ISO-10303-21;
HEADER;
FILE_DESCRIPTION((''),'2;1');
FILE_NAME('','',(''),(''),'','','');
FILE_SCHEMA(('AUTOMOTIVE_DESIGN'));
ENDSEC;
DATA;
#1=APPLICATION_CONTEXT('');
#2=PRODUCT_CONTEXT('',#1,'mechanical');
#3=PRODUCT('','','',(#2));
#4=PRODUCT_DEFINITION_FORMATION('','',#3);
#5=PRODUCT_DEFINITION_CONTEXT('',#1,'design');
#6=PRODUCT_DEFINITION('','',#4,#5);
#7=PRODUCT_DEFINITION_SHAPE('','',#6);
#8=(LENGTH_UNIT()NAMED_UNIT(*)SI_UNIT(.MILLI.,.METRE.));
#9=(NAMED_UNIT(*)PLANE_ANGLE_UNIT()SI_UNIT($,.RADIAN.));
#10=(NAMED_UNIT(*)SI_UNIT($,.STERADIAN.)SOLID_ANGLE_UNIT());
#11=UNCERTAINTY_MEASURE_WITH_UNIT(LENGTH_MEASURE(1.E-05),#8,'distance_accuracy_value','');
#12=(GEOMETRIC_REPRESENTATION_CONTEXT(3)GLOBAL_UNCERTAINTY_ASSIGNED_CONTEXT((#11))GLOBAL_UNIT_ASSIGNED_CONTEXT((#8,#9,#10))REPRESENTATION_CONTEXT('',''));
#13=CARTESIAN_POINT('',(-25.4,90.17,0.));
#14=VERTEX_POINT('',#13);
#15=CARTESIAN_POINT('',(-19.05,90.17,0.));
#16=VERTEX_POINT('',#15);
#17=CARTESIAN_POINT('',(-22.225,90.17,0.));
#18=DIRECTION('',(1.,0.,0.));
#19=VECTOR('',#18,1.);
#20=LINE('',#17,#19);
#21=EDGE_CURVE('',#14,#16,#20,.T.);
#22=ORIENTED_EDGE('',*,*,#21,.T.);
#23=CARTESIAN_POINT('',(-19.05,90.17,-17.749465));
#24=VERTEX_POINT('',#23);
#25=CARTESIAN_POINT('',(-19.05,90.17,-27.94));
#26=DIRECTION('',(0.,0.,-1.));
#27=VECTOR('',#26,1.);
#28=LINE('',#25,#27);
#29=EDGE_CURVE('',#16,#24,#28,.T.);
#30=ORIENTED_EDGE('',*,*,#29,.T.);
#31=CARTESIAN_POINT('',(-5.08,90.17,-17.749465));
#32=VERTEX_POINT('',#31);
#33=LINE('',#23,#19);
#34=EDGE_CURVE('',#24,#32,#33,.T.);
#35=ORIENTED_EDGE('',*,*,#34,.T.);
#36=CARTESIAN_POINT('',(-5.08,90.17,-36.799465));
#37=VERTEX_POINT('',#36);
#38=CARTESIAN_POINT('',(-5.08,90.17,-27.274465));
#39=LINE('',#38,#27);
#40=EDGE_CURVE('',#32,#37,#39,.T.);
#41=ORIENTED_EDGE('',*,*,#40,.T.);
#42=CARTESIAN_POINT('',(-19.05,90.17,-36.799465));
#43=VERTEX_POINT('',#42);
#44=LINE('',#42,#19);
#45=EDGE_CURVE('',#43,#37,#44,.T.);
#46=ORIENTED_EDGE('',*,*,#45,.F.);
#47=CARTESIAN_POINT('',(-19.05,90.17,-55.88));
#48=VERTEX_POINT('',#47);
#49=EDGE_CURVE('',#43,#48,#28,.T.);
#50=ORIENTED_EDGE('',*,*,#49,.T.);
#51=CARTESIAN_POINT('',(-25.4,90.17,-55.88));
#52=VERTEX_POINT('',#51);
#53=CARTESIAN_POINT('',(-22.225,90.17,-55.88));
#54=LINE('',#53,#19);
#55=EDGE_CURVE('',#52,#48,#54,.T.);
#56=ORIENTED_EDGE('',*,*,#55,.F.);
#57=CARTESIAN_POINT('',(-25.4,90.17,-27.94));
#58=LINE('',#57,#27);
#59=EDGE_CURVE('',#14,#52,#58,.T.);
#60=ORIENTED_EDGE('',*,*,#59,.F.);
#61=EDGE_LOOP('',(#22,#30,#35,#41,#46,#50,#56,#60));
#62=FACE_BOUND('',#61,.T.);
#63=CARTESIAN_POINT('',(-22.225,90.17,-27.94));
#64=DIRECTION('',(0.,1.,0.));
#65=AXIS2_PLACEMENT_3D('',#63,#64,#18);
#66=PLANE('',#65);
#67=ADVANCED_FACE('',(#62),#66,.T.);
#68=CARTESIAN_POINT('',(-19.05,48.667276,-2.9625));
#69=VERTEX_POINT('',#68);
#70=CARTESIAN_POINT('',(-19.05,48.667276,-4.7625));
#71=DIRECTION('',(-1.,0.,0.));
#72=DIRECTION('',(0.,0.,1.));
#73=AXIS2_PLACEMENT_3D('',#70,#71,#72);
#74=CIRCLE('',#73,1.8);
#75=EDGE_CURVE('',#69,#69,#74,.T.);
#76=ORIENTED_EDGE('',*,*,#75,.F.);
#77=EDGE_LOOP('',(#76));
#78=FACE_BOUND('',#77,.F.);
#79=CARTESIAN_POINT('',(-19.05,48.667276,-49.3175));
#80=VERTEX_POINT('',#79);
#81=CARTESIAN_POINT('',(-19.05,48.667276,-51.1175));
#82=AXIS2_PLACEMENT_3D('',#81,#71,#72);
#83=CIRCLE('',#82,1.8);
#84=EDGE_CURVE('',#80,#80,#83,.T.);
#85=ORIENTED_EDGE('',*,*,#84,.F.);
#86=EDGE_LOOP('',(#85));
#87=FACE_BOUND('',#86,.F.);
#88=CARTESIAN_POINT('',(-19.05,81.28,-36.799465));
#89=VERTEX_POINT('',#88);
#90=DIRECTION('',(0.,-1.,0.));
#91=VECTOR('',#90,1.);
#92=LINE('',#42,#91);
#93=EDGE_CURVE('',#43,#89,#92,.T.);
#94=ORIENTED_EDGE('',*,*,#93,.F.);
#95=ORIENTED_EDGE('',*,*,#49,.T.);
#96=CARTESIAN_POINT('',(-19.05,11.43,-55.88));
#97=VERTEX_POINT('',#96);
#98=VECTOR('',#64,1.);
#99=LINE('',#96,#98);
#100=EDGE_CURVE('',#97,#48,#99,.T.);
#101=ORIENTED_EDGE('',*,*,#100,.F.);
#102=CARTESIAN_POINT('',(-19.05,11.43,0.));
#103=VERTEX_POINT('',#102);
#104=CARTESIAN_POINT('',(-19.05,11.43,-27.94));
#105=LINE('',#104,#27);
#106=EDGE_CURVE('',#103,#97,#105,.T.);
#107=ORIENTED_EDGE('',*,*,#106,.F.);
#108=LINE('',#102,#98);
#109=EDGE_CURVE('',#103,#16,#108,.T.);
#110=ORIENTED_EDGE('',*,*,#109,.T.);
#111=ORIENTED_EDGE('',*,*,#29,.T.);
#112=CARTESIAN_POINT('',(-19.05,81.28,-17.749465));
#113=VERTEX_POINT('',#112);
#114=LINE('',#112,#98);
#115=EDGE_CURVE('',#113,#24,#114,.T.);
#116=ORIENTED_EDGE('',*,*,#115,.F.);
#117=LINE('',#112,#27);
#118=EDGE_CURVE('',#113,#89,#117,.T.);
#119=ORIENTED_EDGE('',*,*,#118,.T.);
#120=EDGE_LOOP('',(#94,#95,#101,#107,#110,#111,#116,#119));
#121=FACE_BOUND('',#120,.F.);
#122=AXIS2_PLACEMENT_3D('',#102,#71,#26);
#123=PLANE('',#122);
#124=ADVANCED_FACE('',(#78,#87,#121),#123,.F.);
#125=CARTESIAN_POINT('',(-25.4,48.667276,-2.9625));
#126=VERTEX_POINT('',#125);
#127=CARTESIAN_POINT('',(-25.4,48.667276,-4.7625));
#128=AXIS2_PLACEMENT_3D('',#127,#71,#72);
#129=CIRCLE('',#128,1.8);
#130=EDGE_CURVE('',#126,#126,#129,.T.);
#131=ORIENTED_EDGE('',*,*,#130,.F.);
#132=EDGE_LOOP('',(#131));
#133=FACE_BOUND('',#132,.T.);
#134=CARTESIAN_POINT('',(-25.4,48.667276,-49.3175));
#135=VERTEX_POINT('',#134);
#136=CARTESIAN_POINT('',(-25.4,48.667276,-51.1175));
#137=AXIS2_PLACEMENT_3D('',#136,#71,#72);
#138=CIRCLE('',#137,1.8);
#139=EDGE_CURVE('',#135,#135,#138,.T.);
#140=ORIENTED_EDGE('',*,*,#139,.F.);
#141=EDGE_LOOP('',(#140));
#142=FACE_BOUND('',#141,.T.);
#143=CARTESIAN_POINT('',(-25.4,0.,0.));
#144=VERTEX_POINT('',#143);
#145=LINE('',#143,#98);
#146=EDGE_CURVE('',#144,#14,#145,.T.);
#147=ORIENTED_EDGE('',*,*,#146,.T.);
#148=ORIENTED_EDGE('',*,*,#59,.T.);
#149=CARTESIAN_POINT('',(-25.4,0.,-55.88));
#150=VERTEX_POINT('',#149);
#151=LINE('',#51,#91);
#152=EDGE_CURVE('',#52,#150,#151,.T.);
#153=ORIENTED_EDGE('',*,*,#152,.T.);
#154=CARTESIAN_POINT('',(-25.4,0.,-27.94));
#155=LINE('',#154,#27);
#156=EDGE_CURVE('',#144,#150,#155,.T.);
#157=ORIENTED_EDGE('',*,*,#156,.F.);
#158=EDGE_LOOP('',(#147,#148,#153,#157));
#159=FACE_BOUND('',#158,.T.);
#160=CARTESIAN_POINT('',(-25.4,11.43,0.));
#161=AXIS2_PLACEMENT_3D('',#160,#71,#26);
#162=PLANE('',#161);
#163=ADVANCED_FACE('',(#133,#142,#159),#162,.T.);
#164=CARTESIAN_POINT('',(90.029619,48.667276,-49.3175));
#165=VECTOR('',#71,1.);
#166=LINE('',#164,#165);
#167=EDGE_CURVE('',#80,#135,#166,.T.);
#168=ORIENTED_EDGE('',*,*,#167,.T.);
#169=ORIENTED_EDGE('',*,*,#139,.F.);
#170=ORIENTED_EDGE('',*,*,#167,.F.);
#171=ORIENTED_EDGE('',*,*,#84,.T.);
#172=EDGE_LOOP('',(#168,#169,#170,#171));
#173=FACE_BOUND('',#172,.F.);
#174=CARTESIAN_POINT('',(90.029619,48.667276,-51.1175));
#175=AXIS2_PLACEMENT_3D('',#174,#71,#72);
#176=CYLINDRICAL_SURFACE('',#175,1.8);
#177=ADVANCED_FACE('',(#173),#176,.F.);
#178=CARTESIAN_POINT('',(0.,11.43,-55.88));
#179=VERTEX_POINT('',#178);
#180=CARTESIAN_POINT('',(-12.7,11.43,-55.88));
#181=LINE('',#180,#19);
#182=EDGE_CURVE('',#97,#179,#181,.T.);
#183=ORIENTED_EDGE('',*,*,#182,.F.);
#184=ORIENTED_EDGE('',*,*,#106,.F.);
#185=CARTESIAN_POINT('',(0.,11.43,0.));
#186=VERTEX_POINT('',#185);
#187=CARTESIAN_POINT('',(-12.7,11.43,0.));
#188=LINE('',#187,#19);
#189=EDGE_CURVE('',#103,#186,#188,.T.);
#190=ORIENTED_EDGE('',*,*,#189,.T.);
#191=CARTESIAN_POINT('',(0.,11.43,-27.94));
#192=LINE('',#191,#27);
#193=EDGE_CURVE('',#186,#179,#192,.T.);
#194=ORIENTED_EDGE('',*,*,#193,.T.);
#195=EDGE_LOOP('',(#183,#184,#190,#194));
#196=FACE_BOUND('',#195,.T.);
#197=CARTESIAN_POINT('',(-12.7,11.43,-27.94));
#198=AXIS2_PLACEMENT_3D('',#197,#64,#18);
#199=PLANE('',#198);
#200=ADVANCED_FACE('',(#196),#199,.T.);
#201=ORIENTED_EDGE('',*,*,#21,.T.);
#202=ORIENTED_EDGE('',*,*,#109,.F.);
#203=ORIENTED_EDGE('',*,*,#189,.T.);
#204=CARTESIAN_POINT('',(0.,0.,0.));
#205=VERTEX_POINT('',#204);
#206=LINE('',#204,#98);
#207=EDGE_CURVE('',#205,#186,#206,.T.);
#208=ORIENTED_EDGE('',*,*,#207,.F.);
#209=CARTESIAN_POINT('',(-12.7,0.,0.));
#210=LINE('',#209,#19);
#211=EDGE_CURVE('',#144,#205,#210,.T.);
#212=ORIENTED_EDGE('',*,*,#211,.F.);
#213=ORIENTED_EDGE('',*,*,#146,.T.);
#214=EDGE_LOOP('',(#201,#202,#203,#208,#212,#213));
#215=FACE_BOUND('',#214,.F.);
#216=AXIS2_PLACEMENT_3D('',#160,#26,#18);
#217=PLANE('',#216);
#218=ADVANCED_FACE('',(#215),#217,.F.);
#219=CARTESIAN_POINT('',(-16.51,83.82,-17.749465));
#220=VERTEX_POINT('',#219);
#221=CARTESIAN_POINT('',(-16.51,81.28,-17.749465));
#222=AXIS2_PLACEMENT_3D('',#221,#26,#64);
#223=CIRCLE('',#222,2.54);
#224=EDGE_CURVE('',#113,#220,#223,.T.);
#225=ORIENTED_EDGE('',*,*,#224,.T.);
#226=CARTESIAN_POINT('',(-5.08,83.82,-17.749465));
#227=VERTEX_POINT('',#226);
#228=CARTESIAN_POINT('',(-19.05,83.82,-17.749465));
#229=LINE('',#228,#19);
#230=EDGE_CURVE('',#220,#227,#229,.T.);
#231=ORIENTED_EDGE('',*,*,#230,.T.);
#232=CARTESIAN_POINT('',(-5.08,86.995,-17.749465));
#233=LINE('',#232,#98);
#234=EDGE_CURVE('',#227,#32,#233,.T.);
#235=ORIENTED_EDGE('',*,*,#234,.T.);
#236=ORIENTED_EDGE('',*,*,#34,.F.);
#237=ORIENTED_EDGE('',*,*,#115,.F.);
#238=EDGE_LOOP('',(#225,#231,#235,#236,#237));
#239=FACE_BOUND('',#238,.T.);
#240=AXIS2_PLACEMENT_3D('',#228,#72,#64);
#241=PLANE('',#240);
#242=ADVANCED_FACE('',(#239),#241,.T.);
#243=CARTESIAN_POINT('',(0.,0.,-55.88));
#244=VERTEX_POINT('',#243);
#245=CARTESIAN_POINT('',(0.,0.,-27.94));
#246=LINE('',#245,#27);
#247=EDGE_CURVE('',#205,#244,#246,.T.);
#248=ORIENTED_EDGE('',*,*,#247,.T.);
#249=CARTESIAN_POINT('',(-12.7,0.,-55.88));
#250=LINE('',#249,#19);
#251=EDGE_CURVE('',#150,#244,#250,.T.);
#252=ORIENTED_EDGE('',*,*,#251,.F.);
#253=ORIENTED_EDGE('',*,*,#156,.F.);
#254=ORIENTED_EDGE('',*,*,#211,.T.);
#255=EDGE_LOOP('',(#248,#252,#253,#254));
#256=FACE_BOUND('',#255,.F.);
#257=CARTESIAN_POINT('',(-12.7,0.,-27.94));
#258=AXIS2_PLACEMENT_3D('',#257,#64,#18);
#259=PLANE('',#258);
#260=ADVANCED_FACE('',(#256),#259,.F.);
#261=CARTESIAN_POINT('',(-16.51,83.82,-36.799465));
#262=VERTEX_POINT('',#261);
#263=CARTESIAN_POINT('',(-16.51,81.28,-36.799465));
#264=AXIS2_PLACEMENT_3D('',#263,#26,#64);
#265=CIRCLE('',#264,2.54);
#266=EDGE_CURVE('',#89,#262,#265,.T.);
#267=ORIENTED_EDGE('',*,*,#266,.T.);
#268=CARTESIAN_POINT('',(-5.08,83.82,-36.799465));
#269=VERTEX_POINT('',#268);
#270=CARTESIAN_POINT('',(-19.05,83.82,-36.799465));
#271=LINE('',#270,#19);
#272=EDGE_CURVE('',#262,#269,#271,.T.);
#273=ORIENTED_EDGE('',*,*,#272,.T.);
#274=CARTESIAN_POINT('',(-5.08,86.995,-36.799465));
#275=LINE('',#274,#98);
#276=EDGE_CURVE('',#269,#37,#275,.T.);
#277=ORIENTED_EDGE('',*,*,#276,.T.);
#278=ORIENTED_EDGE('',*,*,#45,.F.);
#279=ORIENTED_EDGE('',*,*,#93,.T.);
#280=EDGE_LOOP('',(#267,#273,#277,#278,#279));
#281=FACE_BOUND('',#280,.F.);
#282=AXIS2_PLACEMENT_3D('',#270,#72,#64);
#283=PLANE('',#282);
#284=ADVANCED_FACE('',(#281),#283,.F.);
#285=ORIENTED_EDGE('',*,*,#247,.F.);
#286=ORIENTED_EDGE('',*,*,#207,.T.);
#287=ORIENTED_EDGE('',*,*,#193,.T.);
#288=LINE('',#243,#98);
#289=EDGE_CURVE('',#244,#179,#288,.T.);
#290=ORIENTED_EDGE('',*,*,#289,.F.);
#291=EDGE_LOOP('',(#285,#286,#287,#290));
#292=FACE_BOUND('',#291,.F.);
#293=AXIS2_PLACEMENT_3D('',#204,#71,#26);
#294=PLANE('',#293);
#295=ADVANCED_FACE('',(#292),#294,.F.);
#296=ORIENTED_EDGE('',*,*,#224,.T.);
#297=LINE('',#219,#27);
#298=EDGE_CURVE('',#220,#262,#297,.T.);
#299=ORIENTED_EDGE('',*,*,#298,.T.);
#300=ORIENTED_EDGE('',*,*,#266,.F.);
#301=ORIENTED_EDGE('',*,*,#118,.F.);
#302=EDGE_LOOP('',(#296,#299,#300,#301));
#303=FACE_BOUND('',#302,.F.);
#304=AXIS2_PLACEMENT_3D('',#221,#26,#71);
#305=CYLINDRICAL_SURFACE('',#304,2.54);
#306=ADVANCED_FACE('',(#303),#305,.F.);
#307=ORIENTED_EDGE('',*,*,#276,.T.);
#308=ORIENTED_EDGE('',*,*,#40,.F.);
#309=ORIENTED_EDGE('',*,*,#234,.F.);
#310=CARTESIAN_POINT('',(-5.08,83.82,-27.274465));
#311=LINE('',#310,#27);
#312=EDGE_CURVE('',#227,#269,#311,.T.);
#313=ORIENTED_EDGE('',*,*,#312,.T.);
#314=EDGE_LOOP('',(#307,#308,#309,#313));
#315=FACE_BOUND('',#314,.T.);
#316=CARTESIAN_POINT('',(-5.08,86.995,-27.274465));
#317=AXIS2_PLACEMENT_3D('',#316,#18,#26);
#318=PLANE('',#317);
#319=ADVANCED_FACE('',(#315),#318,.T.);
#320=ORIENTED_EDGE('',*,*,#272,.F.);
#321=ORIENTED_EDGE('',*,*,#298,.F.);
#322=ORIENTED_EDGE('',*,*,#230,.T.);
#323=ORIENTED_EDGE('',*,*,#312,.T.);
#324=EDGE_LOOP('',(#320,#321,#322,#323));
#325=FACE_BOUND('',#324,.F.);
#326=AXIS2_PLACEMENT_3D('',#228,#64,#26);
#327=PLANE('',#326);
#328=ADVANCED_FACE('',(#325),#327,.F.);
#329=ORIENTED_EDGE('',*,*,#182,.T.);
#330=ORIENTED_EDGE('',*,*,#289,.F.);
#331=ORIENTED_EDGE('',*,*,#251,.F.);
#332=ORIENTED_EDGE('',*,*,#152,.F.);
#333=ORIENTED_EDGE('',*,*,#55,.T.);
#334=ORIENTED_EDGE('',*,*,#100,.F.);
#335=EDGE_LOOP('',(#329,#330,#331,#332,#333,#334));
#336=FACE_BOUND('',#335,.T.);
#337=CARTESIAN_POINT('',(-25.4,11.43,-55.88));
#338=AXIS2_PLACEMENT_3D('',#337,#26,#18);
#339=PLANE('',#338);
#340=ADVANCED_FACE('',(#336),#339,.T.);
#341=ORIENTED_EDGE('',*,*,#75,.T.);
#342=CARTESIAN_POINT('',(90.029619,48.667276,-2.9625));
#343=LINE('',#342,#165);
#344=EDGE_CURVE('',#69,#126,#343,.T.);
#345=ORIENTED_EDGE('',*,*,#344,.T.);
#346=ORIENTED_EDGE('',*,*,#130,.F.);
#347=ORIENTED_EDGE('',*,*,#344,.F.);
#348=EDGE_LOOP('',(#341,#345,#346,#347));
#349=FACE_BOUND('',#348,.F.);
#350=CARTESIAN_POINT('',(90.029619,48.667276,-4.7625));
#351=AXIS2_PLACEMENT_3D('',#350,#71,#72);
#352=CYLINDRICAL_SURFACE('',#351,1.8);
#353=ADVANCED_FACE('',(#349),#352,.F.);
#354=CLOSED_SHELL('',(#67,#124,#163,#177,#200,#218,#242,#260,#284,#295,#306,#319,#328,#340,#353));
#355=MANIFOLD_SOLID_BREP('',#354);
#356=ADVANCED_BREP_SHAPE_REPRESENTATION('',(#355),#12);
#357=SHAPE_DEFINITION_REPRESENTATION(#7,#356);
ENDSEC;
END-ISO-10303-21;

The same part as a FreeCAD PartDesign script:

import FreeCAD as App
import Part
import Sketcher
Q = App.Units.Quantity


def edges_at(feature, points):
    """Names of the edges that pass closest to the given points."""
    edges = feature.Shape.Edges
    near = lambda p: min(range(len(edges)), key=lambda i: edges[i].distToShape(Part.Vertex(*p))[0])
    return sorted({f"Edge{near(p) + 1}" for p in points})

doc = App.newDocument("Part")
body = doc.addObject("PartDesign::Body", "Body")

# Sketch on XZ plane
sketch1 = doc.addObject("Sketcher::SketchObject", "Sketch")
body.addObject(sketch1)
sketch1.AttachmentSupport = (doc.XZ_Plane, [""])
sketch1.MapMode = "FlatFace"
sketch1.addGeometry([
    Part.LineSegment(App.Vector(-25, -56, 0), App.Vector(-25, 0, 0)),
    Part.LineSegment(App.Vector(-25, 0, 0), App.Vector(0, 0, 0)),
    Part.LineSegment(App.Vector(0, 0, 0), App.Vector(0, -56, 0)),
    Part.LineSegment(App.Vector(0, -56, 0), App.Vector(-25, -56, 0)),
], False)
sketch1.addConstraint([
    Sketcher.Constraint("Coincident", 0, 2, 1, 1),
    Sketcher.Constraint("Coincident", 1, 2, 2, 1),
    Sketcher.Constraint("Coincident", 2, 2, 3, 1),
    Sketcher.Constraint("Coincident", 3, 2, 0, 1),
    Sketcher.Constraint("Vertical", 0),
    Sketcher.Constraint("Horizontal", 1),
    Sketcher.Constraint("Vertical", 2),
    Sketcher.Constraint("Horizontal", 3),
    Sketcher.Constraint("Coincident", 1, 2, -1, 1),
    Sketcher.Constraint("DistanceX", 1, 1, 1, 2, Q("1 in")),
    Sketcher.Constraint("DistanceY", 0, 1, 0, 2, Q("2.2 in")),
])
pad1 = doc.addObject("PartDesign::Pad", "Pad")
body.addObject(pad1)
pad1.Profile = sketch1
pad1.Length = Q("0.45 in")
pad1.Reversed = True

# Sketch on XZ plane
sketch2 = doc.addObject("Sketcher::SketchObject", "Sketch001")
body.addObject(sketch2)
sketch2.AttachmentSupport = (doc.XZ_Plane, [""])
sketch2.MapMode = "FlatFace"
sketch2.AttachmentOffset = App.Placement(App.Vector(0, 0, -0.45 * 25.4), App.Rotation())
sketch2.addGeometry([
    Part.LineSegment(App.Vector(-25, -56, 0), App.Vector(-25, 0, 0)),
    Part.LineSegment(App.Vector(-25, 0, 0), App.Vector(-19, 0, 0)),
    Part.LineSegment(App.Vector(-19, 0, 0), App.Vector(-19, -56, 0)),
    Part.LineSegment(App.Vector(-19, -56, 0), App.Vector(-25, -56, 0)),
], False)
sketch2.addConstraint([
    Sketcher.Constraint("Coincident", 0, 2, 1, 1),
    Sketcher.Constraint("Coincident", 1, 2, 2, 1),
    Sketcher.Constraint("Coincident", 2, 2, 3, 1),
    Sketcher.Constraint("Coincident", 3, 2, 0, 1),
    Sketcher.Constraint("Vertical", 0),
    Sketcher.Constraint("Horizontal", 1),
    Sketcher.Constraint("Vertical", 2),
    Sketcher.Constraint("Horizontal", 3),
    Sketcher.Constraint("PointOnObject", 0, 2, -1),
    Sketcher.Constraint("DistanceY", 0, 1, 0, 2, Q("2.2 in")),
    Sketcher.Constraint("DistanceX", 0, 2, -1, 1, Q("1 in")),
    Sketcher.Constraint("DistanceX", 1, 1, 1, 2, Q("0.25 in")),
])
pad2 = doc.addObject("PartDesign::Pad", "Pad001")
body.addObject(pad2)
pad2.Profile = sketch2
pad2.Length = Q("3.1 in")
pad2.Reversed = True

# Sketch on YZ plane
sketch3 = doc.addObject("Sketcher::SketchObject", "Sketch002")
body.addObject(sketch3)
sketch3.AttachmentSupport = (doc.YZ_Plane, [""])
sketch3.MapMode = "FlatFace"
sketch3.AttachmentOffset = App.Placement(App.Vector(0, 0, -0.75 * 25.4), App.Rotation())
sketch3.addGeometry([
    Part.LineSegment(App.Vector(90, -18, 0), App.Vector(84, -18, 0)),
    Part.LineSegment(App.Vector(84, -18, 0), App.Vector(84, -37, 0)),
    Part.LineSegment(App.Vector(84, -37, 0), App.Vector(90, -37, 0)),
    Part.LineSegment(App.Vector(90, -37, 0), App.Vector(90, -18, 0)),
], False)
sketch3.addConstraint([
    Sketcher.Constraint("Coincident", 0, 2, 1, 1),
    Sketcher.Constraint("Coincident", 1, 2, 2, 1),
    Sketcher.Constraint("Coincident", 2, 2, 3, 1),
    Sketcher.Constraint("Coincident", 3, 2, 0, 1),
    Sketcher.Constraint("Horizontal", 0),
    Sketcher.Constraint("Vertical", 1),
    Sketcher.Constraint("Horizontal", 2),
    Sketcher.Constraint("Vertical", 3),
    Sketcher.Constraint("DistanceX", 0, 2, 0, 1, Q("0.25 in")),
    Sketcher.Constraint("DistanceY", 1, 2, 1, 1, Q("0.75 in")),
    Sketcher.Constraint("DistanceX", -1, 1, 0, 2, Q("3.3 in")),
    Sketcher.Constraint("DistanceY", 0, 2, -1, 1, 17.749465),
])
pad3 = doc.addObject("PartDesign::Pad", "Pad002")
body.addObject(pad3)
pad3.Profile = sketch3
pad3.Length = Q("0.55 in")

# Sketch on YZ plane
sketch4 = doc.addObject("Sketcher::SketchObject", "Sketch003")
body.addObject(sketch4)
sketch4.AttachmentSupport = (doc.YZ_Plane, [""])
sketch4.MapMode = "FlatFace"
sketch4.AttachmentOffset = App.Placement(App.Vector(0, 0, -0.75 * 25.4), App.Rotation())
sketch4.addGeometry([
    Part.Circle(App.Vector(48.7, -4.8, 0), App.Vector(0, 0, 1), 1.8),
    Part.Circle(App.Vector(48.7, -51.1, 0), App.Vector(0, 0, 1), 1.8),
], False)
sketch4.addConstraint([
    Sketcher.Constraint("Equal", 0, 1),
    Sketcher.Constraint("Vertical", 0, 3, 1, 3),
    Sketcher.Constraint("Diameter", 0, 3.6),
    Sketcher.Constraint("DistanceY", 0, 3, -1, 1, Q("0.1875 in")),
    Sketcher.Constraint("DistanceY", 1, 3, 0, 3, Q("1.825 in")),
    Sketcher.Constraint("DistanceX", -1, 1, 0, 3, 48.667276),
])
doc.recompute()
hole = doc.addObject("PartDesign::Hole", "Hole")
body.addObject(hole)
hole.Profile = sketch4
hole.ThreadType = "None"
hole.Diameter = 3.6
hole.DepthType = "ThroughAll"
doc.recompute()

fillet = doc.addObject("PartDesign::Fillet", "Fillet")
body.addObject(fillet)
fillet.Base = (hole, edges_at(hole, [(-19.05, 83.82, -27.274)]))
fillet.Radius = Q("0.1 in")

doc.recompute()
